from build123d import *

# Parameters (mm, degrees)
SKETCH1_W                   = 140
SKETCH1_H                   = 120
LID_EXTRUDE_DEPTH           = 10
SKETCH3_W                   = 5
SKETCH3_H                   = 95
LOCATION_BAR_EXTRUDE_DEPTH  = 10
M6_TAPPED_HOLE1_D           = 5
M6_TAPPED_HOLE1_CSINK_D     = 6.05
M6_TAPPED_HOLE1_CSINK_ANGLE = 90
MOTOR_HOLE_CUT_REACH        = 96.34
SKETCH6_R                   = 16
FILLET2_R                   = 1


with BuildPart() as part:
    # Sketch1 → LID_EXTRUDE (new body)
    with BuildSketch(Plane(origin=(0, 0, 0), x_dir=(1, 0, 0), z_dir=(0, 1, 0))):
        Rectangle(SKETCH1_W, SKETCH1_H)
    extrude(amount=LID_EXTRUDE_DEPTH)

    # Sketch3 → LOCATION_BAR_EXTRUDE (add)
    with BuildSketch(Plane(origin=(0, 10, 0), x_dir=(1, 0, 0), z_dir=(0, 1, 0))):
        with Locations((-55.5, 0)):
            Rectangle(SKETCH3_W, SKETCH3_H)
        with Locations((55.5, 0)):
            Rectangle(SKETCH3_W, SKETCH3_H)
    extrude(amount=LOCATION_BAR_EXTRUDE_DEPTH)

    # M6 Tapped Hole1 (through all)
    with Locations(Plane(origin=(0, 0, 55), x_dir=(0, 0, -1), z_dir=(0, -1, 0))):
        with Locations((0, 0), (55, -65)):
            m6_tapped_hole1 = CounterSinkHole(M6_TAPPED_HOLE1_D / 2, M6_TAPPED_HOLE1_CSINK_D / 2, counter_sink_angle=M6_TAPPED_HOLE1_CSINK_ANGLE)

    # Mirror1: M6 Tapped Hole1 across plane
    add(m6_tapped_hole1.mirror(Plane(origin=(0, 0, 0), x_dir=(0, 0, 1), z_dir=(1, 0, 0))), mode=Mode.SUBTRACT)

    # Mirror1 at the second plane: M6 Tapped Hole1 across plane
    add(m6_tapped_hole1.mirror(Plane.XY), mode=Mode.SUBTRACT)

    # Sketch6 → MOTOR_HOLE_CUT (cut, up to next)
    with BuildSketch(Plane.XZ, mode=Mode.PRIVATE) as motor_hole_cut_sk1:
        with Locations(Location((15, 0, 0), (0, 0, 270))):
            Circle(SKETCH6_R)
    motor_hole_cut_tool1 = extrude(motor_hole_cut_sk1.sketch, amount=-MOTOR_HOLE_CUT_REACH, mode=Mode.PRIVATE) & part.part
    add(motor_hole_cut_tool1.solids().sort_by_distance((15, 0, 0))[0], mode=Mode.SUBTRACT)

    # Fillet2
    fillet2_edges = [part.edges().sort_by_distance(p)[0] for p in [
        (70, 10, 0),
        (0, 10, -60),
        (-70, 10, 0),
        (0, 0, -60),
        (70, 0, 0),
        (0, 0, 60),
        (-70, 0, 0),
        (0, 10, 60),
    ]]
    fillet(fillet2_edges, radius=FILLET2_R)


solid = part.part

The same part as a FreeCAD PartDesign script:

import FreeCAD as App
import Part
import Sketcher

V = App.Vector
Q = App.Units.Quantity


def edges_at(feature, points):
    """Names of the edges that pass closest to the given points."""
    edges = feature.Shape.Edges
    near = lambda p: min(range(len(edges)), key=lambda i: edges[i].distToShape(Part.Vertex(*p))[0])
    return sorted({f"Edge{near(p) + 1}" for p in points})


def add_polygon(sketch, points):
    """Adds a closed chain of lines whose ends are joined by coincident constraints."""
    first, n = sketch.GeometryCount, len(points)
    for a, b in zip(points, points[1:] + points[:1]):
        sketch.addGeometry(Part.LineSegment(App.Vector(*a, 0), App.Vector(*b, 0)), False)
    for i in range(n):
        sketch.addConstraint(Sketcher.Constraint("Coincident", first + i, 2, first + (i + 1) % n, 1))

doc = App.newDocument("Part")
body = doc.addObject("PartDesign::Body", "Body")

# Sketch on XZ plane
sketch1 = body.newObject("Sketcher::SketchObject", "Sketch")
sketch1.AttachmentSupport = (doc.getObject("XZ_Plane"), [""])
sketch1.MapMode = "FlatFace"
add_polygon(sketch1, [(-70, -60), (-70, 60), (70, 60), (70, -60)])  # lines 0-3
sketch1.addConstraint([
    Sketcher.Constraint("Vertical", 0),
    Sketcher.Constraint("Horizontal", 1),
    Sketcher.Constraint("Vertical", 2),
    Sketcher.Constraint("Horizontal", 3),
    Sketcher.Constraint("Symmetric", 0, 2, 2, 2, -1, 1),
    Sketcher.Constraint("DistanceX", 1, 1, 1, 2, Q("140 mm")),
    Sketcher.Constraint("DistanceY", 0, 1, 0, 2, Q("120 mm")),
])
pad1 = body.newObject("PartDesign::Pad", "Pad")
pad1.Profile = sketch1
pad1.Length = 10
pad1.Reversed = True

# Sketch on XZ plane
sketch2 = body.newObject("Sketcher::SketchObject", "Sketch001")
sketch2.AttachmentSupport = (doc.getObject("XZ_Plane"), [""])
sketch2.MapMode = "FlatFace"
sketch2.AttachmentOffset = App.Placement(V(0, 0, -10), App.Rotation())
add_polygon(sketch2, [(-58, -47.5), (-58, 47.5), (-53, 47.5), (-53, -47.5)])  # lines 0-3
add_polygon(sketch2, [(53, -47.5), (53, 47.5), (58, 47.5), (58, -47.5)])  # lines 4-7
sketch2.addConstraint([
    Sketcher.Constraint("Vertical", 0),
    Sketcher.Constraint("Horizontal", 1),
    Sketcher.Constraint("Vertical", 2),
    Sketcher.Constraint("Horizontal", 3),
    Sketcher.Constraint("Vertical", 4),
    Sketcher.Constraint("Horizontal", 5),
    Sketcher.Constraint("Vertical", 6),
    Sketcher.Constraint("Horizontal", 7),
    Sketcher.Constraint("Symmetric", 2, 2, 4, 2, -1, 1),
    Sketcher.Constraint("Symmetric", 0, 2, 6, 2, -1, 1),
    Sketcher.Constraint("Horizontal", 1, 2, 4, 2),
    Sketcher.Constraint("DistanceX", 1, 1, 1, 2, Q("5 mm")),
    Sketcher.Constraint("DistanceY", 0, 1, 0, 2, Q("95 mm")),
    Sketcher.Constraint("DistanceX", 0, 2, -1, 1, Q("58 mm")),
])
pad2 = body.newObject("PartDesign::Pad", "Pad001")
pad2.Profile = sketch2
pad2.Length = 10
pad2.Reversed = True

# Sketch on XZ plane
sketch3 = body.newObject("Sketcher::SketchObject", "Sketch002")
sketch3.AttachmentSupport = (doc.getObject("XZ_Plane"), [""])
sketch3.MapMode = "FlatFace"
sketch3.addGeometry([
    Part.Circle(V(0, 55, 0), V(0, 0, 1), 2.5),
    Part.Circle(V(-65, 0, 0), V(0, 0, 1), 2.5),
], False)
sketch3.addConstraint([
    Sketcher.Constraint("Equal", 0, 1),
    Sketcher.Constraint("PointOnObject", 0, 3, -2),
    Sketcher.Constraint("PointOnObject", 1, 3, -1),
    Sketcher.Constraint("Diameter", 0, Q("5 mm")),
    Sketcher.Constraint("DistanceY", -1, 1, 0, 3, Q("55 mm")),
    Sketcher.Constraint("DistanceX", 1, 3, -1, 1, Q("65 mm")),
])
doc.recompute()
hole = body.newObject("PartDesign::Hole", "Hole")
hole.Profile = sketch3
hole.ThreadType = "None"
hole.Diameter = 5
hole.DepthType = "ThroughAll"
hole.HoleCutType = "Countersink"
hole.HoleCutDiameter = 6.05
hole.HoleCutCountersinkAngle = 90
doc.recompute()

mirrored = body.newObject("PartDesign::Mirrored", "Mirrored")
mirrored.Originals = [hole]
mirrored.MirrorPlane = (doc.getObject("YZ_Plane"), [""])
body.Tip = mirrored
doc.recompute()

mirrored2 = body.newObject("PartDesign::Mirrored", "Mirrored001")
mirrored2.Originals = [hole]
mirrored2.MirrorPlane = (doc.getObject("XY_Plane"), [""])
body.Tip = mirrored2

# Sketch on XZ plane
sketch4 = body.newObject("Sketcher::SketchObject", "Sketch003")
sketch4.AttachmentSupport = (doc.getObject("XZ_Plane"), [""])
sketch4.MapMode = "FlatFace"
sketch4.addGeometry(Part.Circle(V(15, 0, 0), V(0, 0, 1), 16), False)
sketch4.addConstraint([
    Sketcher.Constraint("PointOnObject", 0, 3, -1),
    Sketcher.Constraint("Diameter", 0, Q("32 mm")),
    Sketcher.Constraint("DistanceX", -1, 1, 0, 3, Q("15 mm")),
])
pocket1 = body.newObject("PartDesign::Pocket", "Pocket")
pocket1.Profile = sketch4
pocket1.Type = "UpToFirst"
doc.recompute()

fillet = body.newObject("PartDesign::Fillet", "Fillet")
fillet.Base = (pocket1, edges_at(pocket1, [
    (70, 10, 0),
    (0, 10, -60),
    (-70, 10, 0),
    (0, 0, -60),
    (70, 0, 0),
    (0, 0, 60),
    (-70, 0, 0),
    (0, 10, 60),
]))
fillet.Radius = 1

doc.recompute()
